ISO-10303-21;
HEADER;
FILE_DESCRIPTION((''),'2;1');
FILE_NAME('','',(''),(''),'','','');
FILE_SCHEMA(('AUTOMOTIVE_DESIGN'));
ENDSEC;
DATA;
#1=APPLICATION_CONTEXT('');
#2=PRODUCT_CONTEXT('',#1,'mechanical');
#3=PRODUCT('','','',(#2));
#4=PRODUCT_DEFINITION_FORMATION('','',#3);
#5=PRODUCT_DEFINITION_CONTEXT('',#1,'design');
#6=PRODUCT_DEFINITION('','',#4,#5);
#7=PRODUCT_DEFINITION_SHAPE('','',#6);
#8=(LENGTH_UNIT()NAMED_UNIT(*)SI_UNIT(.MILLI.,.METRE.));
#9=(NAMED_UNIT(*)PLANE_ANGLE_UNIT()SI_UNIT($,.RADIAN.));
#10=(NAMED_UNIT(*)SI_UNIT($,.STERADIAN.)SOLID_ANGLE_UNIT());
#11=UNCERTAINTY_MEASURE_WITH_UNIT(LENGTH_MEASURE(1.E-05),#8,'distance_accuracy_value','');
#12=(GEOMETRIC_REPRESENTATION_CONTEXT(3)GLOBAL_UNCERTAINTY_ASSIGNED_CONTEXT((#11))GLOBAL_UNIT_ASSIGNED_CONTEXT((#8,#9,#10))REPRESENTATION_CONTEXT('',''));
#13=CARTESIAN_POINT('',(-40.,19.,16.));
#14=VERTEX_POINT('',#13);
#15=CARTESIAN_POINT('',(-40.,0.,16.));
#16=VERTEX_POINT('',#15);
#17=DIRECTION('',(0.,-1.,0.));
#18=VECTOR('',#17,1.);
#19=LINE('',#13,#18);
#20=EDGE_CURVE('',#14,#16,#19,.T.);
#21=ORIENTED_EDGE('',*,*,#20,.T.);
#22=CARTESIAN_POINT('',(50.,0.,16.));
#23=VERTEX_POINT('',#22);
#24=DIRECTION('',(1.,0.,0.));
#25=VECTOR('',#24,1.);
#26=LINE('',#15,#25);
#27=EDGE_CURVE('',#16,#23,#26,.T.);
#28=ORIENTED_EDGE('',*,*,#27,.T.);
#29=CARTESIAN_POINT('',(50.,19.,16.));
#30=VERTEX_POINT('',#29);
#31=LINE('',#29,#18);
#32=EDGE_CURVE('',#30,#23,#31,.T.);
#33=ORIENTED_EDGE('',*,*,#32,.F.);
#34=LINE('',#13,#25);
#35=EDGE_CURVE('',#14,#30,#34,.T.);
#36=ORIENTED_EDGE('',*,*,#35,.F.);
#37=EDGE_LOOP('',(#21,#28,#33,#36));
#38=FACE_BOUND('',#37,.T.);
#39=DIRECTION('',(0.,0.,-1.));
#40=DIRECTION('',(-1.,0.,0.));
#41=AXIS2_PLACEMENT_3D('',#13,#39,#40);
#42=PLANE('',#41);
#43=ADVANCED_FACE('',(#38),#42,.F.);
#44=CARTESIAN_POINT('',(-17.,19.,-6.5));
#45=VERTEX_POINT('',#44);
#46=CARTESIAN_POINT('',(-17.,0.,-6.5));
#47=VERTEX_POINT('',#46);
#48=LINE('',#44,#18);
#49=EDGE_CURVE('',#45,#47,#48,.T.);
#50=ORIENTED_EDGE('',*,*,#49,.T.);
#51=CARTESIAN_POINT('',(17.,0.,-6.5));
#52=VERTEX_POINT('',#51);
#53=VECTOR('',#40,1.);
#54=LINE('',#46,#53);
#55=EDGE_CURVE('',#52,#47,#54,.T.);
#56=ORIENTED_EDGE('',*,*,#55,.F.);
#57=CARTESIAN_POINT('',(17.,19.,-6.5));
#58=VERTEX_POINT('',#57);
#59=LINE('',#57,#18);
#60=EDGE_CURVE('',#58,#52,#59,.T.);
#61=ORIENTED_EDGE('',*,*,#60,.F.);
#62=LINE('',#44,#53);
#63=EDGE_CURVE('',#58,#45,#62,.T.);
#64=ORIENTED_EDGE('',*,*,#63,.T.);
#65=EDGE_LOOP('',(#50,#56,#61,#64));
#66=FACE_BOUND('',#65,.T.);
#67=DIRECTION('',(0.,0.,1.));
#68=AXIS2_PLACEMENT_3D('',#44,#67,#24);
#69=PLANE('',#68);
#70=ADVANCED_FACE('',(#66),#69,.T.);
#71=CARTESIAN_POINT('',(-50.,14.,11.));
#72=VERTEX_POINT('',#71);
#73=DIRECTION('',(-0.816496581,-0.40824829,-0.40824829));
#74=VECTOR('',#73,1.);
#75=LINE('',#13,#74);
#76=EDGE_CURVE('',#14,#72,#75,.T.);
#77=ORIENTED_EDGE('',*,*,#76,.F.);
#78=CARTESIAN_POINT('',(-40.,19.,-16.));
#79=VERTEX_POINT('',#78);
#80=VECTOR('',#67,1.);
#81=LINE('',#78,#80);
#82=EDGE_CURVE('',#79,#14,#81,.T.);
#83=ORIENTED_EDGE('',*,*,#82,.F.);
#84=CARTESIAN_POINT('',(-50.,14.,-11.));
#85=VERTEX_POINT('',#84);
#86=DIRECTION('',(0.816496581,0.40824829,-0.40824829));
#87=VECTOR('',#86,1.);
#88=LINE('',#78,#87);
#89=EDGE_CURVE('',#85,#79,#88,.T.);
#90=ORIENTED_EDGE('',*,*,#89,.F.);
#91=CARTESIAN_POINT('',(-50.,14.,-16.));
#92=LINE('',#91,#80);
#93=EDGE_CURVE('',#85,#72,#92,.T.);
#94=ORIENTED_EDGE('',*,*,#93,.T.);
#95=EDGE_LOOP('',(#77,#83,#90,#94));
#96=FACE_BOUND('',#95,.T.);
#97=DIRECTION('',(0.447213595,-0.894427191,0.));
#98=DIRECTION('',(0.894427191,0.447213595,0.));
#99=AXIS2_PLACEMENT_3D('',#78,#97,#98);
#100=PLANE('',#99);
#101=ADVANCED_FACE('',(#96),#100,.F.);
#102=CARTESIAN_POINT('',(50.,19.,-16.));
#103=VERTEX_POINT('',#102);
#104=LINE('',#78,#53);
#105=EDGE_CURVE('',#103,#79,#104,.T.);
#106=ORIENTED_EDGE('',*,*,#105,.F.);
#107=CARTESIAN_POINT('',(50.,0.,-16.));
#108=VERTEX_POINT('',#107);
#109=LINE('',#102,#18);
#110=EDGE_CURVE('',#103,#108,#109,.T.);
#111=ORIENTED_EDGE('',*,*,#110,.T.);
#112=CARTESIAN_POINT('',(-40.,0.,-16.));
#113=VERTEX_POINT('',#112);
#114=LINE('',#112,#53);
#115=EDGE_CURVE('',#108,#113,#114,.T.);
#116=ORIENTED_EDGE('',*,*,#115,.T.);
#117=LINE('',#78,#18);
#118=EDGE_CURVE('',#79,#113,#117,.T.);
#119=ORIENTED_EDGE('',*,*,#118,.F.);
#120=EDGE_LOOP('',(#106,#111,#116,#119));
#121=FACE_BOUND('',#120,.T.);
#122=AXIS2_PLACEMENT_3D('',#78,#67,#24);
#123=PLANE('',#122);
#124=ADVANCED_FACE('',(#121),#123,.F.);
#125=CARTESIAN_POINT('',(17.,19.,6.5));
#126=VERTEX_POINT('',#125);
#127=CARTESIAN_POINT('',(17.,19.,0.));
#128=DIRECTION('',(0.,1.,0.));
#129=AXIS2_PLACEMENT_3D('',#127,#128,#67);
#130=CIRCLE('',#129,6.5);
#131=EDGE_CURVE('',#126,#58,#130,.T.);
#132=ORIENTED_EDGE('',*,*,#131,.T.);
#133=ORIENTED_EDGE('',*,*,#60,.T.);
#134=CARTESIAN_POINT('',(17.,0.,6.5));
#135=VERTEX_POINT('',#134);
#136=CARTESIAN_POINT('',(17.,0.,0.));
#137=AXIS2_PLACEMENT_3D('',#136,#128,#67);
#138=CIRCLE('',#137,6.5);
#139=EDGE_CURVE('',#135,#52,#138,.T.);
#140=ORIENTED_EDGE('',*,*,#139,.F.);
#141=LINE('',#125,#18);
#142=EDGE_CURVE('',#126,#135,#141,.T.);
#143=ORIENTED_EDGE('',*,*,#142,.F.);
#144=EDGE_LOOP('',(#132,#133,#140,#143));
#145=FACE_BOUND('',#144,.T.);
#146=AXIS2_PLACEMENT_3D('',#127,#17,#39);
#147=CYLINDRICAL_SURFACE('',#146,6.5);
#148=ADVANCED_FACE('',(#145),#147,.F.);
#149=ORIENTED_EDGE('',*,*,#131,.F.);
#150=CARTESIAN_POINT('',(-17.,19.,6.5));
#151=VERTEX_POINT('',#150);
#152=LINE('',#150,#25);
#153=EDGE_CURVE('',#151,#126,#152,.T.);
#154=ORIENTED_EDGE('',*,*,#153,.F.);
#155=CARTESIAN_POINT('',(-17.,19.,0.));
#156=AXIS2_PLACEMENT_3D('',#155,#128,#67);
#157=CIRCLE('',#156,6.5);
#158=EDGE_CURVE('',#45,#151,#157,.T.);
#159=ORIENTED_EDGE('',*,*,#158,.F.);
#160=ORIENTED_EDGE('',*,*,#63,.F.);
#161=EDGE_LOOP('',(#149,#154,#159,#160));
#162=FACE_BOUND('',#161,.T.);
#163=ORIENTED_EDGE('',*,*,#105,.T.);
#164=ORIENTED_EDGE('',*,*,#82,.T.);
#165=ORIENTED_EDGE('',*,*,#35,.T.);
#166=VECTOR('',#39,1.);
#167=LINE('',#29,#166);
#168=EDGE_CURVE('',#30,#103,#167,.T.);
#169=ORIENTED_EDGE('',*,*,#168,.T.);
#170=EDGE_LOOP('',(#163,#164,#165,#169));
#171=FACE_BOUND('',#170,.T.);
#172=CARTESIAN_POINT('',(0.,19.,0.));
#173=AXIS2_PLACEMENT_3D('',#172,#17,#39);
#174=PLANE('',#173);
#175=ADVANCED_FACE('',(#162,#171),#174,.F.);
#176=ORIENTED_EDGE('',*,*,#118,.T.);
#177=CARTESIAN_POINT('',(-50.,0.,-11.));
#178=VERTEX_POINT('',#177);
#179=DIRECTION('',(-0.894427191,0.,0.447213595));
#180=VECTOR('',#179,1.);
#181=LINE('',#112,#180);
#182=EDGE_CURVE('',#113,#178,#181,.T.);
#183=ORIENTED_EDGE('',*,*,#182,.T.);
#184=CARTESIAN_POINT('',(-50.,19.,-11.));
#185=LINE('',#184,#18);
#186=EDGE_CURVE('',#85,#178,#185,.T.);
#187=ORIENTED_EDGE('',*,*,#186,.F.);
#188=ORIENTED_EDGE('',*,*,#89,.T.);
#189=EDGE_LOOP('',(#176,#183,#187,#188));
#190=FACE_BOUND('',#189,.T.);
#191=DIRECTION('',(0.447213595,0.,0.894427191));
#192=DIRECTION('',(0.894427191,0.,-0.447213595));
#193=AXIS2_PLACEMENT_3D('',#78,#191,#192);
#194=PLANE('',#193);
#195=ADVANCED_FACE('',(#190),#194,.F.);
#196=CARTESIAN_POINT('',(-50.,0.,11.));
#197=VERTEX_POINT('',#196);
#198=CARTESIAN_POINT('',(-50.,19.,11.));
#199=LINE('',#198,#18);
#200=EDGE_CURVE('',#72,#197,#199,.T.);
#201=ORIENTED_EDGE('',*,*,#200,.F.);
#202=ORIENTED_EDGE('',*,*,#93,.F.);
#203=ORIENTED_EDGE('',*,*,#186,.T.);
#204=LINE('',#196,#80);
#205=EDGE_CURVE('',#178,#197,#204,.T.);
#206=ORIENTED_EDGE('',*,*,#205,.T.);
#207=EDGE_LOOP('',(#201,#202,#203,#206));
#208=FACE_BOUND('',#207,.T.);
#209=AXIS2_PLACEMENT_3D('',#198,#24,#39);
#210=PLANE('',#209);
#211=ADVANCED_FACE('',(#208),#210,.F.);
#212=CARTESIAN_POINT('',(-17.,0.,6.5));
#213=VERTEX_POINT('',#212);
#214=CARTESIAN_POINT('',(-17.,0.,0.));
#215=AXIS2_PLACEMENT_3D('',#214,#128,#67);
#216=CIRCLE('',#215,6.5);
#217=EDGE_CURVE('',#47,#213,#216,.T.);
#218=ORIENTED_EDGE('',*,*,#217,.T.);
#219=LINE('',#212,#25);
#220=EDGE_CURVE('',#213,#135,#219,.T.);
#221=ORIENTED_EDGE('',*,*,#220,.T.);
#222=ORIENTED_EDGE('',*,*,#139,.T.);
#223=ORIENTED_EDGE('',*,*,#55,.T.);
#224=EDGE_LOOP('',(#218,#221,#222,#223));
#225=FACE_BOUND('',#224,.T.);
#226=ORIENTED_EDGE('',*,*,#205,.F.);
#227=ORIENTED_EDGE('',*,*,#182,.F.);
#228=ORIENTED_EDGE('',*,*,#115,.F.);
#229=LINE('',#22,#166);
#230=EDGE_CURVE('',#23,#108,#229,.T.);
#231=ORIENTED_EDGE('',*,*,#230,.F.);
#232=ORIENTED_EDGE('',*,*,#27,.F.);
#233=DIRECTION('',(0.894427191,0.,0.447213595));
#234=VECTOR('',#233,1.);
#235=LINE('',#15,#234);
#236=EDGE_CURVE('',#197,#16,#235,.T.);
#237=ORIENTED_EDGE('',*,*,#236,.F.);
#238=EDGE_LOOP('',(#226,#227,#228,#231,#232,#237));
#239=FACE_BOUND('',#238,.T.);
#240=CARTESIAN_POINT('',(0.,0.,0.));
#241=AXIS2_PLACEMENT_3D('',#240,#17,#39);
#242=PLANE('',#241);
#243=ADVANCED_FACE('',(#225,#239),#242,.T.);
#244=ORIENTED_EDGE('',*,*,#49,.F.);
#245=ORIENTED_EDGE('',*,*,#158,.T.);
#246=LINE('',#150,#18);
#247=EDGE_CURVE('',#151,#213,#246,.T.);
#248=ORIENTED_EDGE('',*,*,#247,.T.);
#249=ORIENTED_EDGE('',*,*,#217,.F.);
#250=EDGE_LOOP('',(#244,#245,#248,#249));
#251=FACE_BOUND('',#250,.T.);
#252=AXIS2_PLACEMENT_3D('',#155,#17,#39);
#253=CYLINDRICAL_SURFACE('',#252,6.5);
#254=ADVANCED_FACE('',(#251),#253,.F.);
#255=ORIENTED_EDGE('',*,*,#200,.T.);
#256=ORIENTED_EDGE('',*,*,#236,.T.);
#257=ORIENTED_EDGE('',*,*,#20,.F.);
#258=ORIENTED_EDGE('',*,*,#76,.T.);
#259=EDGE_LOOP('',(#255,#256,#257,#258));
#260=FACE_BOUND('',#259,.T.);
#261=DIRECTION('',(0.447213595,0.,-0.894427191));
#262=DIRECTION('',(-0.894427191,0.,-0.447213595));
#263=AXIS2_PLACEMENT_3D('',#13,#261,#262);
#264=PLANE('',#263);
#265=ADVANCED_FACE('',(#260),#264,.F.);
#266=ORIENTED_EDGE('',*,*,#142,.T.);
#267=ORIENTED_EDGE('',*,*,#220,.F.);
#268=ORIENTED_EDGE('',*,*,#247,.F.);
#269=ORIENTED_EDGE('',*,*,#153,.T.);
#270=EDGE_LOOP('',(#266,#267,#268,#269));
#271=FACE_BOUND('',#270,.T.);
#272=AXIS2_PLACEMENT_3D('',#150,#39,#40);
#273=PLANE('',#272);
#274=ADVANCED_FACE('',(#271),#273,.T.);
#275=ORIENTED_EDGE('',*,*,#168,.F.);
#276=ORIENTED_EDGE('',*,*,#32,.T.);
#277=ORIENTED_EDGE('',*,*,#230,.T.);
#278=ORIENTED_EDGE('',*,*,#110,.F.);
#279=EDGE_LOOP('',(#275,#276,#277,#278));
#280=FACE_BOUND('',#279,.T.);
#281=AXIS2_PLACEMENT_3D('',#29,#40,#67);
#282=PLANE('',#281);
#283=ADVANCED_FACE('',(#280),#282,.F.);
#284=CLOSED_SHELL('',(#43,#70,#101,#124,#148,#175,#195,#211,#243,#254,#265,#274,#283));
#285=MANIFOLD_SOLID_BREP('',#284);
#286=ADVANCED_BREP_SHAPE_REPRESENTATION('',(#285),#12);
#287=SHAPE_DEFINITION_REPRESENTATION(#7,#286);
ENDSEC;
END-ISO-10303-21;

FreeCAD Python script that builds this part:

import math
import FreeCAD as App
import Part
import Sketcher
from FreeCAD import Vector
Q = App.Units.Quantity


def add_polygon(sketch, points):
    """Adds a closed chain of lines whose ends are joined by coincident constraints."""
    first, n = sketch.GeometryCount, len(points)
    for a, b in zip(points, points[1:] + points[:1]):
        sketch.addGeometry(Part.LineSegment(App.Vector(*a, 0), App.Vector(*b, 0)), False)
    for i in range(n):
        sketch.addConstraint(Sketcher.Constraint("Coincident", first + i, 2, first + (i + 1) % n, 1))

doc = App.newDocument("Part")
body = doc.addObject("PartDesign::Body", "Body")

sketch1 = body.newObject("Sketcher::SketchObject", "Sketch")
sketch1.AttachmentSupport = (doc.getObject("XZ_Plane"), [""])
sketch1.MapMode = "FlatFace"
add_polygon(sketch1, [(-40, 16), (50, 16), (50, -16), (-40, -16), (-50, -11), (-50, 11)])
sketch1.addGeometry(Part.ArcOfCircle(Part.Circle(Vector(-17, 0, 0), Vector(0, 0, 1), 6), math.radians(90), math.radians(270)), False)
sketch1.addGeometry(Part.LineSegment(Vector(-17, -6, 0), Vector(17, -6, 0)), False)
sketch1.addGeometry(Part.ArcOfCircle(Part.Circle(Vector(17, 0, 0), Vector(0, 0, 1), 6), math.radians(-90), math.radians(90)), False)
sketch1.addGeometry(Part.LineSegment(Vector(17, 6, 0), Vector(-17, 6, 0)), False)
sketch1.addConstraint(Sketcher.Constraint("Tangent", 6, 2, 7, 1))
sketch1.addConstraint(Sketcher.Constraint("Tangent", 7, 2, 8, 1))
sketch1.addConstraint(Sketcher.Constraint("Tangent", 8, 2, 9, 1))
sketch1.addConstraint(Sketcher.Constraint("Tangent", 9, 2, 6, 1))
sketch1.addConstraint(Sketcher.Constraint("Horizontal", 0))
sketch1.addConstraint(Sketcher.Constraint("Vertical", 1))
sketch1.addConstraint(Sketcher.Constraint("Horizontal", 2))
sketch1.addConstraint(Sketcher.Constraint("Vertical", 4))
sketch1.addConstraint(Sketcher.Constraint("Horizontal", 7))
sketch1.addConstraint(Sketcher.Constraint("Horizontal", 9))
sketch1.addConstraint(Sketcher.Constraint("Symmetric", 6, 3, 8, 3, -1, 1))
sketch1.addConstraint(Sketcher.Constraint("Symmetric", 2, 2, 5, 2, -1))
sketch1.addConstraint(Sketcher.Constraint("Equal", 3, 5))
sketch1.addConstraint(Sketcher.Constraint("Radius", 6, Q("6.5 mm")))
sketch1.addConstraint(Sketcher.Constraint("DistanceX", 0, 1, 0, 2, Q("90 mm")))
sketch1.addConstraint(Sketcher.Constraint("DistanceX", 7, 1, 7, 2, Q("34 mm")))
sketch1.addConstraint(Sketcher.Constraint("DistanceY", 1, 2, 1, 1, Q("32 mm")))
sketch1.addConstraint(Sketcher.Constraint("DistanceY", 4, 1, 4, 2, Q("22 mm")))
sketch1.addConstraint(Sketcher.Constraint("DistanceX", -1, 1, 0, 2, Q("50 mm")))
sketch1.addConstraint(Sketcher.Constraint("DistanceX", 3, 2, -1, 1, Q("50 mm")))
pad1 = body.newObject("PartDesign::Pad", "Pad")
pad1.Profile = sketch1
pad1.Length = 19
pad1.Reversed = True

sketch2 = body.newObject("Sketcher::SketchObject", "Sketch001")
sketch2.AttachmentSupport = (doc.getObject("XY_Plane"), [""])
sketch2.MapMode = "FlatFace"
sketch2.AttachmentOffset = App.Placement(Vector(0, 0, 16), App.Rotation())
add_polygon(sketch2, [(-40, 19), (-50, 19), (-50, 14)])
sketch2.addConstraint(Sketcher.Constraint("Horizontal", 0))
sketch2.addConstraint(Sketcher.Constraint("Vertical", 1))
sketch2.addConstraint(Sketcher.Constraint("DistanceX", 0, 2, 0, 1, Q("10 mm")))
sketch2.addConstraint(Sketcher.Constraint("DistanceY", 1, 2, 1, 1, Q("5 mm")))
sketch2.addConstraint(Sketcher.Constraint("DistanceX", 0, 2, -1, 1, Q("50 mm")))
sketch2.addConstraint(Sketcher.Constraint("DistanceY", -1, 1, 0, 2, Q("19 mm")))
pocket1 = body.newObject("PartDesign::Pocket", "Pocket")
pocket1.Profile = sketch2
pocket1.Type = "ThroughAll"

doc.recompute()
